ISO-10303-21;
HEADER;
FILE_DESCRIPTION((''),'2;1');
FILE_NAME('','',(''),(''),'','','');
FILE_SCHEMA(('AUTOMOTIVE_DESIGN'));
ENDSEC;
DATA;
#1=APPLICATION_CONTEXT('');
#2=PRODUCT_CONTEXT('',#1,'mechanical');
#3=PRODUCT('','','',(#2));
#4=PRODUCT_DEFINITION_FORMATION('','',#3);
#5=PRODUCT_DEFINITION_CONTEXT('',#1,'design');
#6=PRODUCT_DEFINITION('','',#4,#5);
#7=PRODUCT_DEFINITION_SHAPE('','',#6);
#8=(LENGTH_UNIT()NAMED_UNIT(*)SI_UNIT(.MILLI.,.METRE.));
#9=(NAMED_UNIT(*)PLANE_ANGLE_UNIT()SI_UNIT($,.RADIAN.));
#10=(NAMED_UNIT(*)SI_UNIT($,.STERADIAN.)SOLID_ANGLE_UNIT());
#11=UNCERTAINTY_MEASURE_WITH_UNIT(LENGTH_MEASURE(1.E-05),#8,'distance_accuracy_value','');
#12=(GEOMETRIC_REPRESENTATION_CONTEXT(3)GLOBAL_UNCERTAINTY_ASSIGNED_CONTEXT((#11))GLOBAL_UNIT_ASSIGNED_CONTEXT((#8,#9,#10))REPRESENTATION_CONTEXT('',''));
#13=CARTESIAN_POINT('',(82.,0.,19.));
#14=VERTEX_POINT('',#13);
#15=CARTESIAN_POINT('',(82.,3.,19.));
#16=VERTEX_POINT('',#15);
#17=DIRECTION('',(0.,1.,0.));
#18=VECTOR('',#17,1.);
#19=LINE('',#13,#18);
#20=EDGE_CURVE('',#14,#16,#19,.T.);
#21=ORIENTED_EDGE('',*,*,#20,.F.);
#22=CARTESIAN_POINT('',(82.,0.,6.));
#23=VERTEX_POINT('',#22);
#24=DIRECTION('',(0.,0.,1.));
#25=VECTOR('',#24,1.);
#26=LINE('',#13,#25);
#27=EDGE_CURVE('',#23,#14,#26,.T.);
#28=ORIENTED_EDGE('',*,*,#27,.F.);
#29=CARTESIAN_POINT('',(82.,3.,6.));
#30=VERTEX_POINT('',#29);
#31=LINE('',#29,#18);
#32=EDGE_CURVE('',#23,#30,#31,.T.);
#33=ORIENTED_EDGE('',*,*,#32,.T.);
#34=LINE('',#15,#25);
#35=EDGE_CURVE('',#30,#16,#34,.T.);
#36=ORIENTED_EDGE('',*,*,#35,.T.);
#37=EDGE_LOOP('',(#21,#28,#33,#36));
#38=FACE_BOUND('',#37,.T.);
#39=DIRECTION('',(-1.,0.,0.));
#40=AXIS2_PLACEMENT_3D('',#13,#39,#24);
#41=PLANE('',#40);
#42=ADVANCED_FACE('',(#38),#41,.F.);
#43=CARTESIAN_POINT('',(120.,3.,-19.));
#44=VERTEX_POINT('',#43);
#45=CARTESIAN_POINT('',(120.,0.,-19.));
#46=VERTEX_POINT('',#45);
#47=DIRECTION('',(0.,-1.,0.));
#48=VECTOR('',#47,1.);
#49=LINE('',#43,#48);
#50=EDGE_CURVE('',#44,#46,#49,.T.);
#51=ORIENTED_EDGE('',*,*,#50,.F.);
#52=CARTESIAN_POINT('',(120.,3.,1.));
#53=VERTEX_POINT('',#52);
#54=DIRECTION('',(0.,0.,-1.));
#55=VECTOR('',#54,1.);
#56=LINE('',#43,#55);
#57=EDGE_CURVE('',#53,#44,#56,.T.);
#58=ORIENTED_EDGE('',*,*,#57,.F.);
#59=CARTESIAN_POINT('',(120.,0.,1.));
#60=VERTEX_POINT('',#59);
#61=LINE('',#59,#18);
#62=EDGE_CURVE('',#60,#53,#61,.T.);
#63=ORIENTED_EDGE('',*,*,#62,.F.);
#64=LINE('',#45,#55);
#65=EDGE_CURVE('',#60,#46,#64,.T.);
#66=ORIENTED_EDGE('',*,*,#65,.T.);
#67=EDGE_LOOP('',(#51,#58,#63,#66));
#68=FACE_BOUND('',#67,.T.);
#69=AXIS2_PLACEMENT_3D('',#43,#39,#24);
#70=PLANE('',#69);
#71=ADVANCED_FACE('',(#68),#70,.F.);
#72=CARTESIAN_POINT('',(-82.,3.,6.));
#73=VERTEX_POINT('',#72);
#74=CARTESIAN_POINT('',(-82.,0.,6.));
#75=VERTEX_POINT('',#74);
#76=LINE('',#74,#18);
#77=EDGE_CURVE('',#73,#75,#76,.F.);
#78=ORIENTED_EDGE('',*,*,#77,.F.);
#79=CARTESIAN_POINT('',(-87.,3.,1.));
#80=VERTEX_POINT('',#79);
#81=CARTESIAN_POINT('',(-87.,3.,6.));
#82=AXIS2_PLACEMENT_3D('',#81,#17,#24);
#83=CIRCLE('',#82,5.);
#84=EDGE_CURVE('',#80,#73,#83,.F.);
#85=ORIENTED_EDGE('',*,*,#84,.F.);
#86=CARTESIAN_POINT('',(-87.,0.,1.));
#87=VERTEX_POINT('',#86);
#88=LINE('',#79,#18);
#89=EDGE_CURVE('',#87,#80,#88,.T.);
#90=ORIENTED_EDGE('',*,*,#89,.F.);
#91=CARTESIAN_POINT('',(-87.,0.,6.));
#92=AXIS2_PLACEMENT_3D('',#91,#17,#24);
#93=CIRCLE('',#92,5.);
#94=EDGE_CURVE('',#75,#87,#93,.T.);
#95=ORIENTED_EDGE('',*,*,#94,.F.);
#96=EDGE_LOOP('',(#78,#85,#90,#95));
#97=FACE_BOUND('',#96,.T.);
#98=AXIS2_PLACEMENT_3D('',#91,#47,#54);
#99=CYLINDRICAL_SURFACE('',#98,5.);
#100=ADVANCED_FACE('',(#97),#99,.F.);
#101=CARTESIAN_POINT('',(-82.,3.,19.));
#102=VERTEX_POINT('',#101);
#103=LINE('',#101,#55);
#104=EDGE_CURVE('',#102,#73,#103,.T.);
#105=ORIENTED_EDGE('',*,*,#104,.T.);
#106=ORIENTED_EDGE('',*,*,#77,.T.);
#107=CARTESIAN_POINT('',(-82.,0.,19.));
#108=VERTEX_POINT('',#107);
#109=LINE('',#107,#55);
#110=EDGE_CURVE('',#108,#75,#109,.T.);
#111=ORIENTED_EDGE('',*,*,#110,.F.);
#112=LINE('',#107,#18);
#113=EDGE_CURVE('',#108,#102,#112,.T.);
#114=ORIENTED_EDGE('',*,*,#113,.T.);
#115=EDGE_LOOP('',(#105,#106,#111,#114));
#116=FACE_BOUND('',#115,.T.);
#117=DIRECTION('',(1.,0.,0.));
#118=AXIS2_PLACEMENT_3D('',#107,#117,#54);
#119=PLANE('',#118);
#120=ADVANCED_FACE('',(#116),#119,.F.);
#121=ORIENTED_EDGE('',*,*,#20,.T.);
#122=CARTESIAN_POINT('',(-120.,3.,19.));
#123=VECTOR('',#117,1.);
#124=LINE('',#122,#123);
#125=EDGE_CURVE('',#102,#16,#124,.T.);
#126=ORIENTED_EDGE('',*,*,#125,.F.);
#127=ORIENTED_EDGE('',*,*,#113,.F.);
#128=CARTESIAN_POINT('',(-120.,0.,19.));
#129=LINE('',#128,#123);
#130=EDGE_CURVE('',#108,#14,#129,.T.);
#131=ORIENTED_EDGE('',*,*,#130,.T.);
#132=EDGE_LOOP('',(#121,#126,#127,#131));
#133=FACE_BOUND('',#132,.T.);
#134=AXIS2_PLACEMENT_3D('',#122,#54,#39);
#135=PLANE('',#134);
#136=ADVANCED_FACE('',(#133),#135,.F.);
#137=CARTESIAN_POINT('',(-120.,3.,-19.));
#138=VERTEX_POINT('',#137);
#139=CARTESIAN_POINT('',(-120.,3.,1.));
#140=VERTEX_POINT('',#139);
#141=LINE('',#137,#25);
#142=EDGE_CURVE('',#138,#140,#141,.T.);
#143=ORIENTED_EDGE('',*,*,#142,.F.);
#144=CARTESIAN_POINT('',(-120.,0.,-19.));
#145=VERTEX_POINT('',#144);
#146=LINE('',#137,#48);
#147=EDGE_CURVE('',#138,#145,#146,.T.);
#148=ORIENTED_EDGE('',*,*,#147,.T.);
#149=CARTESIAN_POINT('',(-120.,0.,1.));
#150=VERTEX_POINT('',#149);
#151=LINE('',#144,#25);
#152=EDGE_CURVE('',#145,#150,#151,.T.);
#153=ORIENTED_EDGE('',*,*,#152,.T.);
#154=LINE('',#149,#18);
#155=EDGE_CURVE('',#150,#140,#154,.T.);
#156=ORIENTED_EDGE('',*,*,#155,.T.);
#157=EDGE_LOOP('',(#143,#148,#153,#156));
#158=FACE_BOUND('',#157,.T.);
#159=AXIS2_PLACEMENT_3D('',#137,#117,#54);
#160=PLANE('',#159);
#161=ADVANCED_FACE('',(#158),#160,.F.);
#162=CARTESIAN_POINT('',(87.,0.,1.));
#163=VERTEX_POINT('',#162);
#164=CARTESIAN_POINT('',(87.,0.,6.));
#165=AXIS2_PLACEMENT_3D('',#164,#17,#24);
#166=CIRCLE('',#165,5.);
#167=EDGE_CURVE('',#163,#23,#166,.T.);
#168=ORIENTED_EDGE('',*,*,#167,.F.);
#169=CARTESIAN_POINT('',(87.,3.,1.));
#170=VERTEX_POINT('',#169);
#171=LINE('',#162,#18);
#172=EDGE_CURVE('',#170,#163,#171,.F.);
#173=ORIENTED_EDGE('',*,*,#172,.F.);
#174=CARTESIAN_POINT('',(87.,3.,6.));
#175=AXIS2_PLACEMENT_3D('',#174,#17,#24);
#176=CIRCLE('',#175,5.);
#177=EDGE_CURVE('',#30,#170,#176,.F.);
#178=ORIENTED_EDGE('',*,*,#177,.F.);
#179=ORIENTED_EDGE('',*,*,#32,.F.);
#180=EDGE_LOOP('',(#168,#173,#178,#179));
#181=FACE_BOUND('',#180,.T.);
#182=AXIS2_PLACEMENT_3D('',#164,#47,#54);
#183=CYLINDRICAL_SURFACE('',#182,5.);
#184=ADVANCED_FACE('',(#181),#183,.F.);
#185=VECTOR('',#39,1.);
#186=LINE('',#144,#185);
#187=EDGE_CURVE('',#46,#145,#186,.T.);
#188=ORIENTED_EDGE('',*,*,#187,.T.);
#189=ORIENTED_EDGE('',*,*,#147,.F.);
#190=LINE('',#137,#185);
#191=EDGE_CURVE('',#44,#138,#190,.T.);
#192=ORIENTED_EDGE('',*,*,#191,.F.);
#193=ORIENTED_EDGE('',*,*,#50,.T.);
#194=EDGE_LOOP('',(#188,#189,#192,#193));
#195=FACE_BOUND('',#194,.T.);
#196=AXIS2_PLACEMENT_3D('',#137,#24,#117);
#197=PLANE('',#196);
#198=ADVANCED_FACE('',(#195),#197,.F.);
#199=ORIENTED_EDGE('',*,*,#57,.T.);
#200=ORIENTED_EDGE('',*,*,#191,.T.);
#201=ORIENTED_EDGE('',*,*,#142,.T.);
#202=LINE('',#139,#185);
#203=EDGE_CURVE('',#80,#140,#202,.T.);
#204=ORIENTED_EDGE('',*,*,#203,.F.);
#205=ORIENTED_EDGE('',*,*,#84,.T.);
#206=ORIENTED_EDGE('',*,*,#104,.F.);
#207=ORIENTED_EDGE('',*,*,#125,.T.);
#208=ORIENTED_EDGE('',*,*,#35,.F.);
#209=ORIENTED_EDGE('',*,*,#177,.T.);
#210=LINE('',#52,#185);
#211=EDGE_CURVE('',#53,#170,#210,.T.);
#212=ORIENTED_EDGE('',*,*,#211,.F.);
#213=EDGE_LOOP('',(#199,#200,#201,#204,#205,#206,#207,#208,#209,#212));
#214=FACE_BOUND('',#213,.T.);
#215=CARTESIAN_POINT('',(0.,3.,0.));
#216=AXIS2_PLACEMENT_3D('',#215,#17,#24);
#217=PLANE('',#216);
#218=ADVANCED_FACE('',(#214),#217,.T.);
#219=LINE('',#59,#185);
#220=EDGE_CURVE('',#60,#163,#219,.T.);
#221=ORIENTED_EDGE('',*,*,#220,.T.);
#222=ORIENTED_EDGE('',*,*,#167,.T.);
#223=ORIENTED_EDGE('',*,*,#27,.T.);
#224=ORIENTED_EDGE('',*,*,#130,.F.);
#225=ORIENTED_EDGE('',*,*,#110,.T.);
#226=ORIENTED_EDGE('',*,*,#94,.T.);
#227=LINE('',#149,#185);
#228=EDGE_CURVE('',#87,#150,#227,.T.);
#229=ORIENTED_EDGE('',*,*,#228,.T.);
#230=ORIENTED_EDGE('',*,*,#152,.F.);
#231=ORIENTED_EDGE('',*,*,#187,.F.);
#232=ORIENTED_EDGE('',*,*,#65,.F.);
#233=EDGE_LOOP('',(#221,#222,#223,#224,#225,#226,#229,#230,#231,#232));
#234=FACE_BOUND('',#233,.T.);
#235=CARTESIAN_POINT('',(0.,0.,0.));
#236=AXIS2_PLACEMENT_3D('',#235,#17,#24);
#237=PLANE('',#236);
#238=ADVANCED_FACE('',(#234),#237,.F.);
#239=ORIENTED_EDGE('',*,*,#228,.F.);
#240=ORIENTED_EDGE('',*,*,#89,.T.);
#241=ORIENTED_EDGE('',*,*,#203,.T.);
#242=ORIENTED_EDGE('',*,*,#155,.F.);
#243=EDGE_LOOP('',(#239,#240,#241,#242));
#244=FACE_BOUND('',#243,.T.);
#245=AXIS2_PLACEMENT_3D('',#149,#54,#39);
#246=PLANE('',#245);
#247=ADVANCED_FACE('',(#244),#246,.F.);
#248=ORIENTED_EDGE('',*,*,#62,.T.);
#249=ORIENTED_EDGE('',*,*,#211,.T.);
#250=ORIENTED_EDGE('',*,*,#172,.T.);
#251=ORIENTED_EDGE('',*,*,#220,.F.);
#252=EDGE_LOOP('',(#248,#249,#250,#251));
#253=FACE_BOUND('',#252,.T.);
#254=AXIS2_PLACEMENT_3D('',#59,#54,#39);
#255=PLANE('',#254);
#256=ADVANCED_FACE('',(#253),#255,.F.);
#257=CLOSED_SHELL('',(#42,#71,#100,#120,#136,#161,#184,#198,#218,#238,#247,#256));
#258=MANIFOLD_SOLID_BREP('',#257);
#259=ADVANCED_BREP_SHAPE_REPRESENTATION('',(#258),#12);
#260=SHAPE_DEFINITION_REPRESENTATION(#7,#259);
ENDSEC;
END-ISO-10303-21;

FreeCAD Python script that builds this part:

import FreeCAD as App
import Part
import Sketcher

V = App.Vector
Q = App.Units.Quantity


def edges_at(feature, points):
    """Names of the edges that pass closest to the given points."""
    edges = feature.Shape.Edges
    near = lambda p: min(range(len(edges)), key=lambda i: edges[i].distToShape(Part.Vertex(*p))[0])
    return sorted({f"Edge{near(p) + 1}" for p in points})


def add_polygon(sketch, points):
    """Adds a closed chain of lines whose ends are joined by coincident constraints."""
    first, n = sketch.GeometryCount, len(points)
    for a, b in zip(points, points[1:] + points[:1]):
        sketch.addGeometry(Part.LineSegment(App.Vector(*a, 0), App.Vector(*b, 0)), False)
    for i in range(n):
        sketch.addConstraint(Sketcher.Constraint("Coincident", first + i, 2, first + (i + 1) % n, 1))

doc = App.newDocument("Part")
params = doc.addObject("Spreadsheet::Sheet", "Params")
for row, (alias, value) in enumerate([
    ("sketch1_width", "240 mm"),
    ("sketch1_height", "38 mm"),
    ("pad1_length", "3 mm"),
    ("sketch2_width", "38 mm"),
    ("sketch2_height", "18 mm"),
    ("pocket1_length", "3 mm"),
    ("fillet_radius", "5 mm"),
], start=1):
    params.set(f"A{row}", alias)
    params.set(f"B{row}", "=" + value)
    params.setAlias(f"B{row}", alias)

body = doc.addObject("PartDesign::Body", "Body")

sketch1 = doc.addObject("Sketcher::SketchObject", "Sketch")
body.addObject(sketch1)
sketch1.AttachmentSupport = (doc.XZ_Plane, [""])
sketch1.MapMode = "FlatFace"
add_polygon(sketch1, [(-120, -19), (-120, 19), (120, 19), (120, -19)])
sketch1.addConstraint([
    Sketcher.Constraint("Vertical", 0),
    Sketcher.Constraint("Horizontal", 1),
    Sketcher.Constraint("Vertical", 2),
    Sketcher.Constraint("Horizontal", 3),
    Sketcher.Constraint("Symmetric", 0, 2, 2, 2, -1, 1),
    Sketcher.Constraint("DistanceX", 1, 1, 1, 2, Q("240 mm")),
    Sketcher.Constraint("DistanceY", 0, 1, 0, 2, Q("38 mm")),
])
sketch1.setExpression("Constraints[9]", "Params.sketch1_width")
sketch1.setExpression("Constraints[10]", "Params.sketch1_height")
pad1 = doc.addObject("PartDesign::Pad", "Pad")
body.addObject(pad1)
pad1.Profile = sketch1
pad1.setExpression("Length", "Params.pad1_length")
pad1.Reversed = True

sketch2 = doc.addObject("Sketcher::SketchObject", "Sketch001")
body.addObject(sketch2)
sketch2.AttachmentSupport = (doc.XZ_Plane, [""])
sketch2.MapMode = "FlatFace"
sketch2.AttachmentOffset = App.Placement(V(0, 0, -3), App.Rotation())
add_polygon(sketch2, [(-120, 1), (-120, 19), (-82, 19), (-82, 1)])
add_polygon(sketch2, [(82, 1), (82, 19), (120, 19), (120, 1)])
sketch2.addConstraint([
    Sketcher.Constraint("Vertical", 0),
    Sketcher.Constraint("Horizontal", 1),
    Sketcher.Constraint("Vertical", 2),
    Sketcher.Constraint("Horizontal", 3),
    Sketcher.Constraint("Vertical", 4),
    Sketcher.Constraint("Horizontal", 5),
    Sketcher.Constraint("Vertical", 6),
    Sketcher.Constraint("Horizontal", 7),
    Sketcher.Constraint("Symmetric", 1, 2, 4, 2, -2),
    Sketcher.Constraint("Symmetric", 3, 2, 6, 2, -2),
    Sketcher.Constraint("DistanceX", 1, 1, 1, 2, Q("38 mm")),
    Sketcher.Constraint("DistanceY", 0, 1, 0, 2, Q("18 mm")),
    Sketcher.Constraint("DistanceX", 0, 2, -1, 1, Q("120 mm")),
    Sketcher.Constraint("DistanceY", -1, 1, 0, 2, Q("19 mm")),
])
sketch2.setExpression("Constraints[18]", "Params.sketch2_width")
sketch2.setExpression("Constraints[19]", "Params.sketch2_height")
pocket1 = doc.addObject("PartDesign::Pocket", "Pocket")
body.addObject(pocket1)
pocket1.Profile = sketch2
pocket1.setExpression("Length", "Params.pocket1_length")
pocket1.Reversed = True
doc.recompute()

fillet = doc.addObject("PartDesign::Fillet", "Fillet")
body.addObject(fillet)
fillet.Base = (pocket1, edges_at(pocket1, [(-82, 1.5, 1), (82, 1.5, 1)]))
fillet.setExpression("Radius", "Params.fillet_radius")

doc.recompute()
